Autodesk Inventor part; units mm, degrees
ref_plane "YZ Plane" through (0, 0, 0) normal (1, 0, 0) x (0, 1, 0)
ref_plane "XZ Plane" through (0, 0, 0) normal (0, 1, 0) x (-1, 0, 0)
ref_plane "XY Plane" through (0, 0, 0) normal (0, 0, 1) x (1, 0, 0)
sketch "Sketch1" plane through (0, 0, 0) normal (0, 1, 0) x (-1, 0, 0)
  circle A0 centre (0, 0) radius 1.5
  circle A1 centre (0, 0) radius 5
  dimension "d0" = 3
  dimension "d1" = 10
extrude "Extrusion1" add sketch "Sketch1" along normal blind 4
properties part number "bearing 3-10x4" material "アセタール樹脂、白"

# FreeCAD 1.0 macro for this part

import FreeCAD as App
import Part
import Sketcher

doc = App.newDocument("Part")
params = doc.addObject("Spreadsheet::Sheet", "Params")
for row, (alias, value) in enumerate([
    ("sketch1_diameter", "10 mm"),
    ("sketch1_diameter2", "3 mm"),
    ("pad1_length", "4 mm"),
], start=1):
    params.set(f"A{row}", alias)
    params.set(f"B{row}", "=" + value)
    params.setAlias(f"B{row}", alias)

body = doc.addObject("PartDesign::Body", "Body")

# Sketch on XZ plane
sketch1 = doc.addObject("Sketcher::SketchObject", "Sketch")
body.addObject(sketch1)
sketch1.AttachmentSupport = (doc.XZ_Plane, [""])
sketch1.MapMode = "FlatFace"
sketch1.addGeometry([
    Part.Circle(App.Vector(0, 0, 0), App.Vector(0, 0, 1), 5),
    Part.Circle(App.Vector(0, 0, 0), App.Vector(0, 0, 1), 1.5),
], False)
sketch1.addConstraint([
    Sketcher.Constraint("Coincident", 0, 3, -1, 1),
    Sketcher.Constraint("Coincident", 1, 3, -1, 1),
    Sketcher.Constraint("Diameter", 0, 10.0),
    Sketcher.Constraint("Diameter", 1, 3.0),
])
sketch1.setExpression("Constraints[2]", "Params.sketch1_diameter")
sketch1.setExpression("Constraints[3]", "Params.sketch1_diameter2")
pad1 = doc.addObject("PartDesign::Pad", "Pad")
body.addObject(pad1)
pad1.Profile = sketch1
pad1.setExpression("Length", "Params.pad1_length")
pad1.Reversed = True

doc.recompute()
